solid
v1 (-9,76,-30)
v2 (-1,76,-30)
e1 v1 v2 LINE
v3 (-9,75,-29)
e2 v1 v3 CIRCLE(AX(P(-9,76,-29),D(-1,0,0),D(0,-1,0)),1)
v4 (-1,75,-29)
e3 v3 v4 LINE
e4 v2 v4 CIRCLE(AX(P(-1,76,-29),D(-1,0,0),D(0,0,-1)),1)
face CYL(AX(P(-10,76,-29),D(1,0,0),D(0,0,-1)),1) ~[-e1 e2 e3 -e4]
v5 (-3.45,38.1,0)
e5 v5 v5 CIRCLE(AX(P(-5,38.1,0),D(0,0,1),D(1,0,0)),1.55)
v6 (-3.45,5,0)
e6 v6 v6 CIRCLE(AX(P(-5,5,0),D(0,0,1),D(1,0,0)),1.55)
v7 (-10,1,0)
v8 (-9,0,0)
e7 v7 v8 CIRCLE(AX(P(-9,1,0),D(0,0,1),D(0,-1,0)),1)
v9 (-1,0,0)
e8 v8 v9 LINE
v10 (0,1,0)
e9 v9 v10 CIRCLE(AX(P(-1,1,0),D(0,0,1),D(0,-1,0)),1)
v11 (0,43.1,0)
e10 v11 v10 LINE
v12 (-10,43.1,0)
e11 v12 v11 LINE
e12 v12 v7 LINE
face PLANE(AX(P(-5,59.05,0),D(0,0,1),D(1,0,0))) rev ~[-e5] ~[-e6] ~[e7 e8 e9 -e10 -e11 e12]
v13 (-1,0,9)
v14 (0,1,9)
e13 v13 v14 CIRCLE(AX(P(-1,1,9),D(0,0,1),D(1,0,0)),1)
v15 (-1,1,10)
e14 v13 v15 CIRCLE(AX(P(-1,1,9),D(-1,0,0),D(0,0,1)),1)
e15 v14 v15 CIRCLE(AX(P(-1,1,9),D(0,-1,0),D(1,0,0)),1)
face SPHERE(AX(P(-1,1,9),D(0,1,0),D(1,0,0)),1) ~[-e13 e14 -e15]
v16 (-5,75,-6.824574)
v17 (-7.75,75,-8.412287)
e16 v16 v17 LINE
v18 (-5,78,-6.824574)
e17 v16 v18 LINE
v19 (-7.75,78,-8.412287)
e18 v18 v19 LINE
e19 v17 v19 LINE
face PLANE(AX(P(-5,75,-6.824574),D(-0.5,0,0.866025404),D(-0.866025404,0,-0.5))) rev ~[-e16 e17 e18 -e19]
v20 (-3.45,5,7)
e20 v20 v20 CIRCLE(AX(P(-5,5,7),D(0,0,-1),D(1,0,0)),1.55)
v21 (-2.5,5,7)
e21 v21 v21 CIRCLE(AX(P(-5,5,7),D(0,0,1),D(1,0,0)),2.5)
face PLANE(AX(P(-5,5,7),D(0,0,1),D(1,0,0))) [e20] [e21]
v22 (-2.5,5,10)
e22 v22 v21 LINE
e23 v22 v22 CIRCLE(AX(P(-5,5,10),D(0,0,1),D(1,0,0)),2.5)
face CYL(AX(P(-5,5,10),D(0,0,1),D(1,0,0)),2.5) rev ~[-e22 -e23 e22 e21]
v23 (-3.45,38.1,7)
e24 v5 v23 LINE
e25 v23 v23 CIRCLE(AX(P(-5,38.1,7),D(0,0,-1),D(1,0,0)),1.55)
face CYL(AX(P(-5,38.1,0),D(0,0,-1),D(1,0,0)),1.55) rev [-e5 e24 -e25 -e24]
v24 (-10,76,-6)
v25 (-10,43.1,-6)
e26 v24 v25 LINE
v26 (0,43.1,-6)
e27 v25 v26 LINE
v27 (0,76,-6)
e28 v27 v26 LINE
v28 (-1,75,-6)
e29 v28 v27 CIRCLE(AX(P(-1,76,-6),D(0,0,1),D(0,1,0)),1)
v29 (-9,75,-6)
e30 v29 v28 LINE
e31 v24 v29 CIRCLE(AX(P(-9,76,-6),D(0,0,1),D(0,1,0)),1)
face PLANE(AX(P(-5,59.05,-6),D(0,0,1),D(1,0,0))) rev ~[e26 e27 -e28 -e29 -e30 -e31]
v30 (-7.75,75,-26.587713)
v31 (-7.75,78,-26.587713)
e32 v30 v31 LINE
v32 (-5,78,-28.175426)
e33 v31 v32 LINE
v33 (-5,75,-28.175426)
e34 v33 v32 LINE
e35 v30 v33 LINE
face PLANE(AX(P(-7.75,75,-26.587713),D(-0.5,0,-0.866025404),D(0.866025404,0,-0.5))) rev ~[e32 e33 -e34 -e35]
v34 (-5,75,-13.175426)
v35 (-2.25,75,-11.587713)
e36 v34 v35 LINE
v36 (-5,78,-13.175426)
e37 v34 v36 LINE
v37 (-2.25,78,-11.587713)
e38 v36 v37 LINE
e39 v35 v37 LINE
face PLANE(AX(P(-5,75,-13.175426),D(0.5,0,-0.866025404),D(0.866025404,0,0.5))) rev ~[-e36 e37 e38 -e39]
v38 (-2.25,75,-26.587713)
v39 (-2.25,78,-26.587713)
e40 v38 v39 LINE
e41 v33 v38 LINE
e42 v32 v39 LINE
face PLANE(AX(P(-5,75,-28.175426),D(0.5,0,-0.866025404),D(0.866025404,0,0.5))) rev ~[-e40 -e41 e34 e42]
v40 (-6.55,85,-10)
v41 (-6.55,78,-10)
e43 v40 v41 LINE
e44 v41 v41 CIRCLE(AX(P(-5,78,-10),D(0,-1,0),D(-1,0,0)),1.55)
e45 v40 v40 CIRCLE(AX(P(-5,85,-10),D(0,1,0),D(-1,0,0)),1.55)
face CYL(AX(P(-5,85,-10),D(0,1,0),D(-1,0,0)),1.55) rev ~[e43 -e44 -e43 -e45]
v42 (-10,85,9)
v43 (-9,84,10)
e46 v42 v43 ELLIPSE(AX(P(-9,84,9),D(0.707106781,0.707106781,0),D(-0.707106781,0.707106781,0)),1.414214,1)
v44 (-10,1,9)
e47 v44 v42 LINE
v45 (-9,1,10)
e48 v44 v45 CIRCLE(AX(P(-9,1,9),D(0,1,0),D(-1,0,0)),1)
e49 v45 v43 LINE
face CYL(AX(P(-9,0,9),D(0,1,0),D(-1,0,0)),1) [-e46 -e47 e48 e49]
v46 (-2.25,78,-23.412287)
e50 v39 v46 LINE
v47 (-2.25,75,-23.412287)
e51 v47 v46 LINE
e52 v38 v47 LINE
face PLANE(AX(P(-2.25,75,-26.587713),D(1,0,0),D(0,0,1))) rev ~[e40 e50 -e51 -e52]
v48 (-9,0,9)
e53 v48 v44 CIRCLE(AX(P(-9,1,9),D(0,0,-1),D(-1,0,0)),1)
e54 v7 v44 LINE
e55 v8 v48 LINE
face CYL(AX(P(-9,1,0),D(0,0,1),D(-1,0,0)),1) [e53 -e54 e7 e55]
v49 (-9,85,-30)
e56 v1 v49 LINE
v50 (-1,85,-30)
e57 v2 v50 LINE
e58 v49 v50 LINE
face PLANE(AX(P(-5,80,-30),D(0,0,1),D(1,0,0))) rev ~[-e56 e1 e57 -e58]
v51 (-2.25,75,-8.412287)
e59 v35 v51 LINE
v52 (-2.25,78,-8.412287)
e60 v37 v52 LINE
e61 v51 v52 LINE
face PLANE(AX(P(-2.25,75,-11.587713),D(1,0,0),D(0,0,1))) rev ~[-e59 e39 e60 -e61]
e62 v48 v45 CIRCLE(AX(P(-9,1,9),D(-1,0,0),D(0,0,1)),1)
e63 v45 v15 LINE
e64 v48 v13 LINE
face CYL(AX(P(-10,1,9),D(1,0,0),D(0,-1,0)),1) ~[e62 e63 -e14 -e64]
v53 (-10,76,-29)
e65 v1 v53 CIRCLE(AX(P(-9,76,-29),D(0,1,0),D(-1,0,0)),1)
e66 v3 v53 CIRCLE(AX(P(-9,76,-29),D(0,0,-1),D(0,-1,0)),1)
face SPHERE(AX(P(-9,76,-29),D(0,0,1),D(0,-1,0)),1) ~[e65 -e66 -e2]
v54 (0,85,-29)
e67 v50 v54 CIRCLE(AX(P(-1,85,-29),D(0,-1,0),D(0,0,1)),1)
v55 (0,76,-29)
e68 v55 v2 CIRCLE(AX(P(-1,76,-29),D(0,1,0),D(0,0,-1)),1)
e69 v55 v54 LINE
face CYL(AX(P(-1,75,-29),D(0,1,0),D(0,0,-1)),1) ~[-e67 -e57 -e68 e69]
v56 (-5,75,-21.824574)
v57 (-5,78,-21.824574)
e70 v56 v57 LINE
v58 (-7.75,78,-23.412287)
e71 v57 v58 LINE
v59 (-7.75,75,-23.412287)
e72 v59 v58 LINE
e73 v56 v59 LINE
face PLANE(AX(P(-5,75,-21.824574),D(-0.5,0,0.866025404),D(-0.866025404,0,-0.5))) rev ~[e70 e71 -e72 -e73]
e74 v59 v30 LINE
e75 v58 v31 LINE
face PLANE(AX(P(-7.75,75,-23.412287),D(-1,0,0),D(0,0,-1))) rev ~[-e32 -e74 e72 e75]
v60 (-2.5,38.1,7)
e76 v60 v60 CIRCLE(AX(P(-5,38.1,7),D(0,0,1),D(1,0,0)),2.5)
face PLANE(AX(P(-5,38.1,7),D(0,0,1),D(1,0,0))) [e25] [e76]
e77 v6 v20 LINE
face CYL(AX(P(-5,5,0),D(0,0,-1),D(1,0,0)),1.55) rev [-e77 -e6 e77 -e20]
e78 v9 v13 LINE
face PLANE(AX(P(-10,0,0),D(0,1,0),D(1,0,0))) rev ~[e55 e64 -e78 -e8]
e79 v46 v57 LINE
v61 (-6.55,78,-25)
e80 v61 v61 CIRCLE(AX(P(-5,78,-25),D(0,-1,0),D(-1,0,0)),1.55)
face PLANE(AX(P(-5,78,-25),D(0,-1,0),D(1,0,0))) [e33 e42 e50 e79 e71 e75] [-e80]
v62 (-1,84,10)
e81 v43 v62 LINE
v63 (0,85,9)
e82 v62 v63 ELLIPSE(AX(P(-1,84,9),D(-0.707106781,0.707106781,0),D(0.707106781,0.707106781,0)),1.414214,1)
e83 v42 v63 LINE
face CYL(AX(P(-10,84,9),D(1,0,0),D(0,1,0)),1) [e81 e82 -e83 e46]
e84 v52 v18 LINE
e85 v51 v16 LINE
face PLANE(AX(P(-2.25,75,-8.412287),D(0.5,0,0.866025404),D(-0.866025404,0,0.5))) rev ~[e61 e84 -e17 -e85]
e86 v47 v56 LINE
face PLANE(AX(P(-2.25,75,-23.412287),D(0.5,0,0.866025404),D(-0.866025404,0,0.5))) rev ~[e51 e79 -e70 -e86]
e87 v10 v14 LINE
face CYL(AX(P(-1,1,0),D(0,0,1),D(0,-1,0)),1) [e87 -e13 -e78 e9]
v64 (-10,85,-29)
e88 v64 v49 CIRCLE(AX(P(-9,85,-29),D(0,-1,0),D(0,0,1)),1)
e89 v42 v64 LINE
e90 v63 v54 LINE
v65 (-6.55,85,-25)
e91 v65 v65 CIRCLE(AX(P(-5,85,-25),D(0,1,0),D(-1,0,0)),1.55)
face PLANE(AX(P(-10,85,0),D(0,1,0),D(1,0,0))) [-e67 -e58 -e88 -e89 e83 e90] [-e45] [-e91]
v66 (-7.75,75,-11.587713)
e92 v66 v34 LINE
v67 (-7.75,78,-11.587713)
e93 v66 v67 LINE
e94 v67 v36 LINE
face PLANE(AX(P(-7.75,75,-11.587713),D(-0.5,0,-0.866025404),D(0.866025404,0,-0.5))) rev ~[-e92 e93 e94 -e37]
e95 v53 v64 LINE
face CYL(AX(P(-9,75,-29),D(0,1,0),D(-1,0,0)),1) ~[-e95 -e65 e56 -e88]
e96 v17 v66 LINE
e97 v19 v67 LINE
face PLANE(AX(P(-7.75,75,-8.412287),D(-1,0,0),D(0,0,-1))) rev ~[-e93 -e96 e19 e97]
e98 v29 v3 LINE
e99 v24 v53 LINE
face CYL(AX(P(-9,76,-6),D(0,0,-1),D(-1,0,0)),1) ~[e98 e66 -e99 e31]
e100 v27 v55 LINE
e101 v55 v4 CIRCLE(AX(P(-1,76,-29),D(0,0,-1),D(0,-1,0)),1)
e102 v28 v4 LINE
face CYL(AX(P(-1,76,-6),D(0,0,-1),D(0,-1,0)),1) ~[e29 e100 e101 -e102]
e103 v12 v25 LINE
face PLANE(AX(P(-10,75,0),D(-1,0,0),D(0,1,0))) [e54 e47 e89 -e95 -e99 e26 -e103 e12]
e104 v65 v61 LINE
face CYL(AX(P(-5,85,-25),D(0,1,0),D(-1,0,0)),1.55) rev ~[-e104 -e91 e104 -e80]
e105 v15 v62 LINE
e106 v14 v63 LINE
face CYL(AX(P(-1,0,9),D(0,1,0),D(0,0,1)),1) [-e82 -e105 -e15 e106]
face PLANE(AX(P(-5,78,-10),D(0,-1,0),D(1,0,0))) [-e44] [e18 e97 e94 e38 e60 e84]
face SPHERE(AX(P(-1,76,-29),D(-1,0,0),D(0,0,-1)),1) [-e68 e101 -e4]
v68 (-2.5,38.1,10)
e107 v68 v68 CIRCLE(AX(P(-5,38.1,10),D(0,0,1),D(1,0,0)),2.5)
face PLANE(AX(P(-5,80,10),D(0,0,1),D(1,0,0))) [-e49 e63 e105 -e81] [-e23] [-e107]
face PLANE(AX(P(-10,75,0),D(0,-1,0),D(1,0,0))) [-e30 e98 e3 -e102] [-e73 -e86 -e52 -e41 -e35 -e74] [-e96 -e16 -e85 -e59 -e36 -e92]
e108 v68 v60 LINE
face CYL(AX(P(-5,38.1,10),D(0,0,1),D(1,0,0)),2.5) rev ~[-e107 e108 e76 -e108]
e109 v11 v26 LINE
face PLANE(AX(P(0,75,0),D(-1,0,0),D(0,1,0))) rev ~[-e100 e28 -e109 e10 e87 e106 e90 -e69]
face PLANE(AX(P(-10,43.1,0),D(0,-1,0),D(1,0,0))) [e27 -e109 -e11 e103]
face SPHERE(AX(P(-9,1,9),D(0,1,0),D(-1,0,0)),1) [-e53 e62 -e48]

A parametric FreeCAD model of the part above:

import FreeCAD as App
import Part
import Sketcher
Q = App.Units.Quantity


def edges_at(feature, points):
    """Names of the edges that pass closest to the given points."""
    edges = feature.Shape.Edges
    near = lambda p: min(range(len(edges)), key=lambda i: edges[i].distToShape(Part.Vertex(*p))[0])
    return sorted({f"Edge{near(p) + 1}" for p in points})

doc = App.newDocument("Part")
body = doc.addObject("PartDesign::Body", "Body")

sketch1 = body.newObject("Sketcher::SketchObject", "Sketch")
sketch1.AttachmentSupport = (doc.getObject("XY_Plane"), [""])
sketch1.MapMode = "FlatFace"
sketch1.addGeometry(Part.LineSegment(App.Vector(-10, 43.1, 0), App.Vector(-10, 0, 0)), False)
sketch1.addGeometry(Part.LineSegment(App.Vector(-10, 0, 0), App.Vector(0, 0, 0)), False)
sketch1.addGeometry(Part.LineSegment(App.Vector(0, 0, 0), App.Vector(0, 43.1, 0)), False)
sketch1.addGeometry(Part.LineSegment(App.Vector(0, 43.1, 0), App.Vector(-10, 43.1, 0)), False)
sketch1.addGeometry(Part.Circle(App.Vector(-5, 5, 0), App.Vector(0, 0, 1), 1.55), False)
sketch1.addGeometry(Part.Circle(App.Vector(-5, 38.1, 0), App.Vector(0, 0, 1), 1.55), False)
sketch1.addConstraint(Sketcher.Constraint("Coincident", 0, 2, 1, 1))
sketch1.addConstraint(Sketcher.Constraint("Coincident", 1, 2, 2, 1))
sketch1.addConstraint(Sketcher.Constraint("Coincident", 2, 2, 3, 1))
sketch1.addConstraint(Sketcher.Constraint("Coincident", 3, 2, 0, 1))
sketch1.addConstraint(Sketcher.Constraint("Vertical", 0))
sketch1.addConstraint(Sketcher.Constraint("Horizontal", 1))
sketch1.addConstraint(Sketcher.Constraint("Vertical", 2))
sketch1.addConstraint(Sketcher.Constraint("Horizontal", 3))
sketch1.addConstraint(Sketcher.Constraint("Coincident", 1, 2, -1, 1))
sketch1.addConstraint(Sketcher.Constraint("Equal", 4, 5))
sketch1.addConstraint(Sketcher.Constraint("Vertical", 4, 3, 5, 3))
sketch1.addConstraint(Sketcher.Constraint("Diameter", 4, Q("3.1 mm")))
sketch1.addConstraint(Sketcher.Constraint("DistanceX", 1, 1, 1, 2, Q("10 mm")))
sketch1.addConstraint(Sketcher.Constraint("DistanceY", 0, 2, 0, 1, Q("43.1 mm")))
sketch1.addConstraint(Sketcher.Constraint("DistanceX", 4, 3, -1, 1, Q("5 mm")))
sketch1.addConstraint(Sketcher.Constraint("DistanceY", -1, 1, 4, 3, Q("5 mm")))
sketch1.addConstraint(Sketcher.Constraint("DistanceY", 5, 3, 2, 2, Q("5 mm")))
pad1 = body.newObject("PartDesign::Pad", "Pad")
pad1.Profile = sketch1
pad1.Length = 10

sketch2 = body.newObject("Sketcher::SketchObject", "Sketch001")
sketch2.AttachmentSupport = (doc.getObject("XY_Plane"), [""])
sketch2.MapMode = "FlatFace"
sketch2.addGeometry(Part.LineSegment(App.Vector(-10, 75, 0), App.Vector(-10, 43.1, 0)), False)
sketch2.addGeometry(Part.LineSegment(App.Vector(-10, 43.1, 0), App.Vector(0, 43.1, 0)), False)
sketch2.addGeometry(Part.LineSegment(App.Vector(0, 43.1, 0), App.Vector(0, 75, 0)), False)
sketch2.addGeometry(Part.LineSegment(App.Vector(0, 75, 0), App.Vector(-10, 75, 0)), False)
sketch2.addConstraint(Sketcher.Constraint("Coincident", 0, 2, 1, 1))
sketch2.addConstraint(Sketcher.Constraint("Coincident", 1, 2, 2, 1))
sketch2.addConstraint(Sketcher.Constraint("Coincident", 2, 2, 3, 1))
sketch2.addConstraint(Sketcher.Constraint("Coincident", 3, 2, 0, 1))
sketch2.addConstraint(Sketcher.Constraint("Vertical", 0))
sketch2.addConstraint(Sketcher.Constraint("Horizontal", 1))
sketch2.addConstraint(Sketcher.Constraint("Vertical", 2))
sketch2.addConstraint(Sketcher.Constraint("Horizontal", 3))
sketch2.addConstraint(Sketcher.Constraint("PointOnObject", 1, 2, -2))
sketch2.addConstraint(Sketcher.Constraint("DistanceX", 1, 1, 1, 2, Q("10 mm")))
sketch2.addConstraint(Sketcher.Constraint("DistanceY", 0, 2, 0, 1, Q("31.9 mm")))
sketch2.addConstraint(Sketcher.Constraint("DistanceY", -1, 1, 2, 2, Q("75 mm")))
pad2 = body.newObject("PartDesign::Pad", "Pad001")
pad2.Profile = sketch2
pad2.Type = "TwoLengths"
pad2.Length = 10
pad2.Length2 = 6

sketch3 = body.newObject("Sketcher::SketchObject", "Sketch002")
sketch3.AttachmentSupport = (doc.getObject("XY_Plane"), [""])
sketch3.MapMode = "FlatFace"
sketch3.addGeometry(Part.LineSegment(App.Vector(-10, 85, 0), App.Vector(-10, 75, 0)), False)
sketch3.addGeometry(Part.LineSegment(App.Vector(-10, 75, 0), App.Vector(0, 75, 0)), False)
sketch3.addGeometry(Part.LineSegment(App.Vector(0, 75, 0), App.Vector(0, 85, 0)), False)
sketch3.addGeometry(Part.LineSegment(App.Vector(0, 85, 0), App.Vector(-10, 85, 0)), False)
sketch3.addConstraint(Sketcher.Constraint("Coincident", 0, 2, 1, 1))
sketch3.addConstraint(Sketcher.Constraint("Coincident", 1, 2, 2, 1))
sketch3.addConstraint(Sketcher.Constraint("Coincident", 2, 2, 3, 1))
sketch3.addConstraint(Sketcher.Constraint("Coincident", 3, 2, 0, 1))
sketch3.addConstraint(Sketcher.Constraint("Vertical", 0))
sketch3.addConstraint(Sketcher.Constraint("Horizontal", 1))
sketch3.addConstraint(Sketcher.Constraint("Vertical", 2))
sketch3.addConstraint(Sketcher.Constraint("Horizontal", 3))
sketch3.addConstraint(Sketcher.Constraint("PointOnObject", 1, 2, -2))
sketch3.addConstraint(Sketcher.Constraint("Equal", 3, 0))
sketch3.addConstraint(Sketcher.Constraint("DistanceX", 1, 1, 1, 2, Q("10 mm")))
sketch3.addConstraint(Sketcher.Constraint("DistanceY", -1, 1, 0, 2, Q("75 mm")))
pad3 = body.newObject("PartDesign::Pad", "Pad002")
pad3.Profile = sketch3
pad3.Type = "TwoLengths"
pad3.Length = 30
pad3.Length2 = 10
pad3.Reversed = True

sketch4 = body.newObject("Sketcher::SketchObject", "Sketch003")
sketch4.AttachmentSupport = (doc.getObject("XZ_Plane"), [""])
sketch4.MapMode = "FlatFace"
sketch4.AttachmentOffset = App.Placement(App.Vector(0, 0, -85), App.Rotation())
sketch4.addGeometry(Part.Circle(App.Vector(-5, -25, 0), App.Vector(0, 0, 1), 1.55), False)
sketch4.addGeometry(Part.Circle(App.Vector(-5, -10, 0), App.Vector(0, 0, 1), 1.55), False)
sketch4.addConstraint(Sketcher.Constraint("Equal", 0, 1))
sketch4.addConstraint(Sketcher.Constraint("Vertical", 0, 3, 1, 3))
sketch4.addConstraint(Sketcher.Constraint("Diameter", 0, Q("3.1 mm")))
sketch4.addConstraint(Sketcher.Constraint("DistanceX", 0, 3, -1, 1, Q("5 mm")))
sketch4.addConstraint(Sketcher.Constraint("DistanceY", 0, 3, -1, 1, Q("25 mm")))
sketch4.addConstraint(Sketcher.Constraint("DistanceY", 1, 3, -1, 1, Q("10 mm")))
pocket1 = body.newObject("PartDesign::Pocket", "Pocket")
pocket1.Profile = sketch4
pocket1.Length = 15
pocket1.Reversed = True
doc.recompute()

fillet = body.newObject("PartDesign::Fillet", "Fillet")
fillet.Base = (pocket1, edges_at(pocket1, [
    (-10, 42.5, 10),
    (0, 42.5, 10),
    (-5, 85, 10),
    (-10, 75, -18),
    (-5, 75, -30),
    (0, 80, -30),
    (-10, 80, -30),
    (-10, 0, 5),
    (0, 0, 5),
    (-5, 0, 10),
    (0, 75, -18),
]))
fillet.Radius = 1

sketch5 = body.newObject("Sketcher::SketchObject", "Sketch004")
sketch5.AttachmentSupport = (doc.getObject("XZ_Plane"), [""])
sketch5.MapMode = "FlatFace"
sketch5.AttachmentOffset = App.Placement(App.Vector(0, 0, -75), App.Rotation())
sketch5.addGeometry(Part.LineSegment(App.Vector(-2.25, -11.587713, 0), App.Vector(-2.25, -8.412287, 0)), False)
sketch5.addGeometry(Part.LineSegment(App.Vector(-2.25, -8.412287, 0), App.Vector(-5, -6.824574, 0)), False)
sketch5.addGeometry(Part.LineSegment(App.Vector(-5, -6.824574, 0), App.Vector(-7.75, -8.412287, 0)), False)
sketch5.addGeometry(Part.LineSegment(App.Vector(-7.75, -8.412287, 0), App.Vector(-7.75, -11.587713, 0)), False)
sketch5.addGeometry(Part.LineSegment(App.Vector(-7.75, -11.587713, 0), App.Vector(-5, -13.175426, 0)), False)
sketch5.addGeometry(Part.LineSegment(App.Vector(-5, -13.175426, 0), App.Vector(-2.25, -11.587713, 0)), False)
sketch5.addGeometry(Part.Circle(App.Vector(-5, -10, 0), App.Vector(0, 0, 1), 1.55), False)
sketch5.addGeometry(Part.LineSegment(App.Vector(-2.25, -26.587713, 0), App.Vector(-2.25, -23.412287, 0)), False)
sketch5.addGeometry(Part.LineSegment(App.Vector(-2.25, -23.412287, 0), App.Vector(-5, -21.824574, 0)), False)
sketch5.addGeometry(Part.LineSegment(App.Vector(-5, -21.824574, 0), App.Vector(-7.75, -23.412287, 0)), False)
sketch5.addGeometry(Part.LineSegment(App.Vector(-7.75, -23.412287, 0), App.Vector(-7.75, -26.587713, 0)), False)
sketch5.addGeometry(Part.LineSegment(App.Vector(-7.75, -26.587713, 0), App.Vector(-5, -28.175426, 0)), False)
sketch5.addGeometry(Part.LineSegment(App.Vector(-5, -28.175426, 0), App.Vector(-2.25, -26.587713, 0)), False)
sketch5.addGeometry(Part.Circle(App.Vector(-5, -25, 0), App.Vector(0, 0, 1), 1.55), False)
sketch5.addConstraint(Sketcher.Constraint("Coincident", 0, 2, 1, 1))
sketch5.addConstraint(Sketcher.Constraint("Coincident", 1, 2, 2, 1))
sketch5.addConstraint(Sketcher.Constraint("Coincident", 2, 2, 3, 1))
sketch5.addConstraint(Sketcher.Constraint("Coincident", 3, 2, 4, 1))
sketch5.addConstraint(Sketcher.Constraint("Coincident", 4, 2, 5, 1))
sketch5.addConstraint(Sketcher.Constraint("Coincident", 5, 2, 0, 1))
sketch5.addConstraint(Sketcher.Constraint("Coincident", 7, 2, 8, 1))
sketch5.addConstraint(Sketcher.Constraint("Coincident", 8, 2, 9, 1))
sketch5.addConstraint(Sketcher.Constraint("Coincident", 9, 2, 10, 1))
sketch5.addConstraint(Sketcher.Constraint("Coincident", 10, 2, 11, 1))
sketch5.addConstraint(Sketcher.Constraint("Coincident", 11, 2, 12, 1))
sketch5.addConstraint(Sketcher.Constraint("Coincident", 12, 2, 7, 1))
sketch5.addConstraint(Sketcher.Constraint("Vertical", 0))
sketch5.addConstraint(Sketcher.Constraint("Vertical", 3))
sketch5.addConstraint(Sketcher.Constraint("Vertical", 7))
sketch5.addConstraint(Sketcher.Constraint("Vertical", 10))
sketch5.addConstraint(Sketcher.Constraint("Equal", 6, 13))
sketch5.addConstraint(Sketcher.Constraint("Parallel", 1, 4))
sketch5.addConstraint(Sketcher.Constraint("Parallel", 2, 5))
sketch5.addConstraint(Sketcher.Constraint("Parallel", 4, 8))
sketch5.addConstraint(Sketcher.Constraint("Parallel", 5, 9))
sketch5.addConstraint(Sketcher.Constraint("Parallel", 8, 11))
sketch5.addConstraint(Sketcher.Constraint("Parallel", 9, 12))
sketch5.addConstraint(Sketcher.Constraint("Horizontal", 0, 2, 2, 2))
sketch5.addConstraint(Sketcher.Constraint("Horizontal", 3, 2, 5, 2))
sketch5.addConstraint(Sketcher.Constraint("Horizontal", 7, 2, 9, 2))
sketch5.addConstraint(Sketcher.Constraint("Horizontal", 10, 2, 12, 2))
sketch5.addConstraint(Sketcher.Constraint("Vertical", 6, 3, 13, 3))
sketch5.addConstraint(Sketcher.Constraint("Vertical", 13, 3, 1, 2))
sketch5.addConstraint(Sketcher.Constraint("Vertical", 1, 2, 4, 2))
sketch5.addConstraint(Sketcher.Constraint("Vertical", 5, 2, 7, 2))
sketch5.addConstraint(Sketcher.Constraint("Vertical", 4, 2, 8, 2))
sketch5.addConstraint(Sketcher.Constraint("Equal", 3, 7))
sketch5.addConstraint(Sketcher.Constraint("Diameter", 6, Q("3.1 mm")))
sketch5.addConstraint(Sketcher.Constraint("Angle", 1, Q("150 deg")))
sketch5.addConstraint(Sketcher.Constraint("DistanceX", 6, 3, -1, 1, Q("5 mm")))
sketch5.addConstraint(Sketcher.Constraint("DistanceY", 6, 3, -1, 1, Q("10 mm")))
sketch5.addConstraint(Sketcher.Constraint("DistanceY", 13, 3, -1, 1, Q("25 mm")))
sketch5.addConstraint(Sketcher.Constraint("DistanceX", 2, 2, 0, 2, Q("5.5 mm")))
sketch5.addConstraint(Sketcher.Constraint("DistanceY", 0, 1, 0, 2, Q("3.175426 mm")))
sketch5.addConstraint(Sketcher.Constraint("DistanceY", 7, 2, 4, 2, Q("10.23686 mm")))
sketch5.addConstraint(Sketcher.Constraint("DistanceY", 0, 2, -1, 1, Q("8.412287 mm")))
pocket2 = body.newObject("PartDesign::Pocket", "Pocket001")
pocket2.Profile = sketch5
pocket2.Length = 3

sketch6 = body.newObject("Sketcher::SketchObject", "Sketch005")
sketch6.AttachmentSupport = (doc.getObject("XY_Plane"), [""])
sketch6.MapMode = "FlatFace"
sketch6.AttachmentOffset = App.Placement(App.Vector(0, 0, 10), App.Rotation())
sketch6.addGeometry(Part.Circle(App.Vector(-5, 38.1, 0), App.Vector(0, 0, 1), 2.5), False)
sketch6.addGeometry(Part.Circle(App.Vector(-5, 5, 0), App.Vector(0, 0, 1), 2.5), False)
sketch6.addConstraint(Sketcher.Constraint("Equal", 0, 1))
sketch6.addConstraint(Sketcher.Constraint("Vertical", 0, 3, 1, 3))
sketch6.addConstraint(Sketcher.Constraint("Diameter", 0, Q("5 mm")))
sketch6.addConstraint(Sketcher.Constraint("DistanceX", 0, 3, -1, 1, Q("5 mm")))
sketch6.addConstraint(Sketcher.Constraint("DistanceY", -1, 1, 1, 3, Q("5 mm")))
sketch6.addConstraint(Sketcher.Constraint("DistanceY", -1, 1, 0, 3, Q("38.1 mm")))
pocket3 = body.newObject("PartDesign::Pocket", "Pocket002")
pocket3.Profile = sketch6
pocket3.Length = 3

doc.recompute()
